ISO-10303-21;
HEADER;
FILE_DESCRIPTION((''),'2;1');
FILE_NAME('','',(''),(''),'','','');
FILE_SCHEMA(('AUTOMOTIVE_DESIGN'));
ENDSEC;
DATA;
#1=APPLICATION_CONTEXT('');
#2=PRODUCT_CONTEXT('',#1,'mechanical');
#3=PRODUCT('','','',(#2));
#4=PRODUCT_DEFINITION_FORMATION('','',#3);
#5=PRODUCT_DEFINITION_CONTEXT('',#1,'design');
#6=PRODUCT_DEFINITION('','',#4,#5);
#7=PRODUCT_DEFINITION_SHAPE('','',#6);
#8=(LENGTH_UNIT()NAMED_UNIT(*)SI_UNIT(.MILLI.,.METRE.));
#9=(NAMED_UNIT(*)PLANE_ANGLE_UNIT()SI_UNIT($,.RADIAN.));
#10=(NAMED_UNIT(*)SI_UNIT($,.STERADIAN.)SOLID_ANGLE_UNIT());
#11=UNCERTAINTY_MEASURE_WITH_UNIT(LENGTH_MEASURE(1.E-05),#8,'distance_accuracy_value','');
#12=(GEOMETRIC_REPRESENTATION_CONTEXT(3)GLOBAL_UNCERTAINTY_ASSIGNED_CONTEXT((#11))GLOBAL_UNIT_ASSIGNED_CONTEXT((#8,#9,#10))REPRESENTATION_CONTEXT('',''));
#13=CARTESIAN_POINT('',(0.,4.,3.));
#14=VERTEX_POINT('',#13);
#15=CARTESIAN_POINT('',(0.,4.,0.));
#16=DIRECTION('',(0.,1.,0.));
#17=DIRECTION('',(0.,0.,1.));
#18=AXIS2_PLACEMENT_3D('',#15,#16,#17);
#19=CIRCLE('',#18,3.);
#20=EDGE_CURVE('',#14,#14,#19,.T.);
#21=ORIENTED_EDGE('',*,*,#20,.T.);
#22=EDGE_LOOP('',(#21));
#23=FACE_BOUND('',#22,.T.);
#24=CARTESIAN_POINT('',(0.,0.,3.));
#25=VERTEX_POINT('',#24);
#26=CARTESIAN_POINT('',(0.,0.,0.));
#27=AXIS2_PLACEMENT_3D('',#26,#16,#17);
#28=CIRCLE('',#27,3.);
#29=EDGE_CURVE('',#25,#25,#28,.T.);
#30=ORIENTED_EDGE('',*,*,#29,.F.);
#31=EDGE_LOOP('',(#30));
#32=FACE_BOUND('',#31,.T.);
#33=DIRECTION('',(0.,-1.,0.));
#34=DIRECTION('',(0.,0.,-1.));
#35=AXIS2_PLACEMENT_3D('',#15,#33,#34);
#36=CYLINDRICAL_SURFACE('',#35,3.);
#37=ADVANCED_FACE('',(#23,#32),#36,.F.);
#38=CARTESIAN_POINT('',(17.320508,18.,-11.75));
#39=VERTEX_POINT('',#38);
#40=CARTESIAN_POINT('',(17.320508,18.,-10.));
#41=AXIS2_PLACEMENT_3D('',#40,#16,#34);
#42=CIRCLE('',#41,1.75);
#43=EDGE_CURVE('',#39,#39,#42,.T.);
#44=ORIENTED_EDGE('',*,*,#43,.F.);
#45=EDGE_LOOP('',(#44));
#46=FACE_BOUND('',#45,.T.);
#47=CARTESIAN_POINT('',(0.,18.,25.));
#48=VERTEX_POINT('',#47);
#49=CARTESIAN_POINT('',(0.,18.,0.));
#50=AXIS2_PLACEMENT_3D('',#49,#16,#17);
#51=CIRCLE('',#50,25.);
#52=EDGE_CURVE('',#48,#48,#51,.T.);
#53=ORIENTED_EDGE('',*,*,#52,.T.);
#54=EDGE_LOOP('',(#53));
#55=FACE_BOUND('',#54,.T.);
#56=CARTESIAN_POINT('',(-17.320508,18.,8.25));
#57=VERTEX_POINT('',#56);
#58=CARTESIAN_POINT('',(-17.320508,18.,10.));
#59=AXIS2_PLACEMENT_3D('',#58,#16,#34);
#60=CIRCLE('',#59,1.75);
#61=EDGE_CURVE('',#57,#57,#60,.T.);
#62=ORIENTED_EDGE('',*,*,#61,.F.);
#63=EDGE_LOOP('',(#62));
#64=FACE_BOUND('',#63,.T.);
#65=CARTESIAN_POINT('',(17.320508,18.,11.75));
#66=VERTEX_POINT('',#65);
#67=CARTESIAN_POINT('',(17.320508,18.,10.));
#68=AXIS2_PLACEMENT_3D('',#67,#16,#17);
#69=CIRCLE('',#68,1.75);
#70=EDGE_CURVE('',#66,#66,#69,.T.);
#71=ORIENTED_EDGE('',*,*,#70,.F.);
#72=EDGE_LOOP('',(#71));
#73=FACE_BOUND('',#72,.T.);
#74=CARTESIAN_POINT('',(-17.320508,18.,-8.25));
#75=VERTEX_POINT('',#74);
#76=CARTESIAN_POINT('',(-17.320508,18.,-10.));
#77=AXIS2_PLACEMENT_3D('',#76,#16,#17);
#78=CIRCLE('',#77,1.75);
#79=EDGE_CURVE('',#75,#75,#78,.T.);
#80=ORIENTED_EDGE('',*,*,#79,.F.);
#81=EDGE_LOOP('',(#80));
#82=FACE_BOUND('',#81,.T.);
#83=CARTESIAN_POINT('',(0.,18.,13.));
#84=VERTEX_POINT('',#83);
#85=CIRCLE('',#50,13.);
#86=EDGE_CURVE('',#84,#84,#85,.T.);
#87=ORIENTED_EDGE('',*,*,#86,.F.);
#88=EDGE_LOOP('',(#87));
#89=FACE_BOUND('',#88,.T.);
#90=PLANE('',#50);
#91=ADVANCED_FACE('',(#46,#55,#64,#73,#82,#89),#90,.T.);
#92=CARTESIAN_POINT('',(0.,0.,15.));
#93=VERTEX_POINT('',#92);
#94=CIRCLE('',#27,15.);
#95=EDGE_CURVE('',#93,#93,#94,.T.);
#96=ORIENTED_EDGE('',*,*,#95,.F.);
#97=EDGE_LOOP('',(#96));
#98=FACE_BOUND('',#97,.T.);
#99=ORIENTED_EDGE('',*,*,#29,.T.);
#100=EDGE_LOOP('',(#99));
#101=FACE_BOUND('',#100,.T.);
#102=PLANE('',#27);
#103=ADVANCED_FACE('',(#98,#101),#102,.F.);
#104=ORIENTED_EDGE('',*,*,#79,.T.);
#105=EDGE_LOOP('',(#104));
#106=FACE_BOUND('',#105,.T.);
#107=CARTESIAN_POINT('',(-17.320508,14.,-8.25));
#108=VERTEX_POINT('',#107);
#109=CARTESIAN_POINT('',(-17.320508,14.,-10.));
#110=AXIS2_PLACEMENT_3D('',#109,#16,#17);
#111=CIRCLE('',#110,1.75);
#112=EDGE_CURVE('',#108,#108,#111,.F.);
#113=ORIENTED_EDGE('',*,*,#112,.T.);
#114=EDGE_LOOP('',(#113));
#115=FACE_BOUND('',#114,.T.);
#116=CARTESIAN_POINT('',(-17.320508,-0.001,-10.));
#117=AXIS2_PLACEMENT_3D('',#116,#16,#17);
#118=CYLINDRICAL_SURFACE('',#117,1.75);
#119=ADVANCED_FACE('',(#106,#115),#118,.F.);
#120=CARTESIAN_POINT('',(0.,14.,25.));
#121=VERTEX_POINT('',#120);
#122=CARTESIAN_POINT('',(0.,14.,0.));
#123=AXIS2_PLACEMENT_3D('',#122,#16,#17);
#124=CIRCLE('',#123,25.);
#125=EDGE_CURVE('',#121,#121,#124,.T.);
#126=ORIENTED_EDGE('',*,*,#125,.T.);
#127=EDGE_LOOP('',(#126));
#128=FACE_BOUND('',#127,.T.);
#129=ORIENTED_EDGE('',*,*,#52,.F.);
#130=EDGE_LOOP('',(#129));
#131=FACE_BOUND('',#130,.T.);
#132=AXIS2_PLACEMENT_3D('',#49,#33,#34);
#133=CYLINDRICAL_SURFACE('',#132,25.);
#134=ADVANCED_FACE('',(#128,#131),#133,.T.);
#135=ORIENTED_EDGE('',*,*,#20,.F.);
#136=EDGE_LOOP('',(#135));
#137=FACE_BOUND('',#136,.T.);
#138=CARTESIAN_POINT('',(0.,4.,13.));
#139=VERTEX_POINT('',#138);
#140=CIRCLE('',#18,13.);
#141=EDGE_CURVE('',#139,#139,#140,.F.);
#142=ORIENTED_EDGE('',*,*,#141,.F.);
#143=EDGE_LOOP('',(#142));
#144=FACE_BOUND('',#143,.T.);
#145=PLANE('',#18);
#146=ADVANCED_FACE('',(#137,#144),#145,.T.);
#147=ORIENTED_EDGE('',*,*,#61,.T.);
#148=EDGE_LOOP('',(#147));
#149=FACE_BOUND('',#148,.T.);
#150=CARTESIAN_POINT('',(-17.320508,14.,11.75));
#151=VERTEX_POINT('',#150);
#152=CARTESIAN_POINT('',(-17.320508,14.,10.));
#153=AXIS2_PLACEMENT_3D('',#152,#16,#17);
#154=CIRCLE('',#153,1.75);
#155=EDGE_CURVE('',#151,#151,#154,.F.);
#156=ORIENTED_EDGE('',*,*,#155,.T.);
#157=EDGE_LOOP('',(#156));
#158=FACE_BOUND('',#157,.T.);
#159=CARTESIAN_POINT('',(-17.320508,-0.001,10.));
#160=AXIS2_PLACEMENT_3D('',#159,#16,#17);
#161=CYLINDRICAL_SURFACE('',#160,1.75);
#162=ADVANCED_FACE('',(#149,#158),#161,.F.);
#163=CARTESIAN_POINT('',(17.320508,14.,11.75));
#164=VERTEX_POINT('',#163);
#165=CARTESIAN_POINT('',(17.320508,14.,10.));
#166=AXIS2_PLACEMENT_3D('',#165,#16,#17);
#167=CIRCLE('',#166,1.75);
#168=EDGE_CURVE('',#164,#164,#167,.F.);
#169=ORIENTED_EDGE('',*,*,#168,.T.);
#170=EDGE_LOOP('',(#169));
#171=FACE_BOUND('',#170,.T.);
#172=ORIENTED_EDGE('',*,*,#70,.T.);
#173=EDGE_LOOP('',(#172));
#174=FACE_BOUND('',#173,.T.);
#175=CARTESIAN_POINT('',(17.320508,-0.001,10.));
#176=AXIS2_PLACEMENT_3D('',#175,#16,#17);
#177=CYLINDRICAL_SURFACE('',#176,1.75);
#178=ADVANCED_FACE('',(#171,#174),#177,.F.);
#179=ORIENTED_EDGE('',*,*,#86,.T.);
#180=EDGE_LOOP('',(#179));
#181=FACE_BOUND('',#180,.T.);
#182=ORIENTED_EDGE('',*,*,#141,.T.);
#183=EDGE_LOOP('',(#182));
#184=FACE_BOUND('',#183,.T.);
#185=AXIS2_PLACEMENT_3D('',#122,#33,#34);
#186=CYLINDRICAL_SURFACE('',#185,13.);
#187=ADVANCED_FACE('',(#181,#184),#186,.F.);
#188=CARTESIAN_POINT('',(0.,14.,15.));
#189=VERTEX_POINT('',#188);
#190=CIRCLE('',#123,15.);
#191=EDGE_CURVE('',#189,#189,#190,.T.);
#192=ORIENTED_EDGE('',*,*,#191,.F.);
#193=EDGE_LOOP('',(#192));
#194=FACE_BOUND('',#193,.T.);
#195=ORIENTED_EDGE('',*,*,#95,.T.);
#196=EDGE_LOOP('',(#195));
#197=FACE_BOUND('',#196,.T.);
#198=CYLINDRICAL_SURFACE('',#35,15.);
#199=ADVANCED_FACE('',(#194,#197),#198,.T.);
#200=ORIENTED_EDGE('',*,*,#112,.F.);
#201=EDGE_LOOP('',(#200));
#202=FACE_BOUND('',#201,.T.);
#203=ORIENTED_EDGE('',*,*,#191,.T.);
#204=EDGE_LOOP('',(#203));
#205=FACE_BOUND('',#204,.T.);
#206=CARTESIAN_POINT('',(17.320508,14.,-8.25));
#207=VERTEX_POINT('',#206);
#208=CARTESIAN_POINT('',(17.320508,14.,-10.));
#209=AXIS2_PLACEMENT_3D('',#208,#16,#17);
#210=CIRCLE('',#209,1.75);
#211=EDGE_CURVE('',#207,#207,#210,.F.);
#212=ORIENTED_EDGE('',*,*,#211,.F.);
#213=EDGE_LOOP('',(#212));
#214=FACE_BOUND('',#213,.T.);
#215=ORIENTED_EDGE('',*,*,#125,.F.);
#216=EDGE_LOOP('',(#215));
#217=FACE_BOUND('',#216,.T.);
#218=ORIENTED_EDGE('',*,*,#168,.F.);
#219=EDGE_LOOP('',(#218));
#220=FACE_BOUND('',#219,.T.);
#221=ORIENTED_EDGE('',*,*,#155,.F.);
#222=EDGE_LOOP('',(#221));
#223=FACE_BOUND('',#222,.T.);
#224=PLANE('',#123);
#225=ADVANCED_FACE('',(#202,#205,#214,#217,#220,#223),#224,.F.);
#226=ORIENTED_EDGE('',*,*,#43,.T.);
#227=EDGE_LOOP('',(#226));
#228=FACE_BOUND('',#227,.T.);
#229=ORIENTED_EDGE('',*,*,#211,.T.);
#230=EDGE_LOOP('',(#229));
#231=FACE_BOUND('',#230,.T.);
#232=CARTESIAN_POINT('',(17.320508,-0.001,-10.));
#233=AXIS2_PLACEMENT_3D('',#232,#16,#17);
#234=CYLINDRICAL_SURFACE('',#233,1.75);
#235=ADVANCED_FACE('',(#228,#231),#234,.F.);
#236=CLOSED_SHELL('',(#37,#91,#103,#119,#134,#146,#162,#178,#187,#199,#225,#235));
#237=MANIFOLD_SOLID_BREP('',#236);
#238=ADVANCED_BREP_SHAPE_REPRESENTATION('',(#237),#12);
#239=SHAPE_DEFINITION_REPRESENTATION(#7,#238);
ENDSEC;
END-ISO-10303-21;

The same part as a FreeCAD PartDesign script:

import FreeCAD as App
import Part
import Sketcher

V = App.Vector
Q = App.Units.Quantity

doc = App.newDocument("Part")
body = doc.addObject("PartDesign::Body", "Body")

sketch1 = doc.addObject("Sketcher::SketchObject", "Sketch")
body.addObject(sketch1)
sketch1.AttachmentSupport = (doc.XZ_Plane, [""])
sketch1.MapMode = "FlatFace"
sketch1.addGeometry([
    Part.Circle(V(0, 0, 0), V(0, 0, 1), 15),
    Part.Circle(V(0, 0, 0), V(0, 0, 1), 3),
], False)
sketch1.addConstraint([
    Sketcher.Constraint("Coincident", 0, 3, -1, 1),
    Sketcher.Constraint("Coincident", 1, 3, -1, 1),
    Sketcher.Constraint("Diameter", 0, Q("30 mm")),
    Sketcher.Constraint("Diameter", 1, Q("6 mm")),
])
pad1 = doc.addObject("PartDesign::Pad", "Pad")
body.addObject(pad1)
pad1.Profile = sketch1
pad1.Length = 4
pad1.Reversed = True

sketch2 = doc.addObject("Sketcher::SketchObject", "Sketch001")
body.addObject(sketch2)
sketch2.AttachmentSupport = (doc.XZ_Plane, [""])
sketch2.MapMode = "FlatFace"
sketch2.AttachmentOffset = App.Placement(V(0, 0, -4), App.Rotation())
sketch2.addGeometry([
    Part.Circle(V(0, 0, 0), V(0, 0, 1), 15),
    Part.Circle(V(0, 0, 0), V(0, 0, 1), 13),
], False)
sketch2.addConstraint([
    Sketcher.Constraint("Coincident", 0, 3, -1, 1),
    Sketcher.Constraint("Coincident", 1, 3, -1, 1),
    Sketcher.Constraint("Diameter", 0, Q("30 mm")),
    Sketcher.Constraint("Diameter", 1, Q("26 mm")),
])
pad2 = doc.addObject("PartDesign::Pad", "Pad001")
body.addObject(pad2)
pad2.Profile = sketch2
pad2.Length = 10
pad2.Reversed = True

sketch3 = doc.addObject("Sketcher::SketchObject", "Sketch002")
body.addObject(sketch3)
sketch3.AttachmentSupport = (doc.XZ_Plane, [""])
sketch3.MapMode = "FlatFace"
sketch3.AttachmentOffset = App.Placement(V(0, 0, -14), App.Rotation())
sketch3.addGeometry([
    Part.Circle(V(0, 0, 0), V(0, 0, 1), 25),
    Part.Circle(V(0, 0, 0), V(0, 0, 1), 13),
], False)
sketch3.addConstraint([
    Sketcher.Constraint("Coincident", 0, 3, -1, 1),
    Sketcher.Constraint("Coincident", 1, 3, -1, 1),
    Sketcher.Constraint("Diameter", 0, Q("50 mm")),
    Sketcher.Constraint("Diameter", 1, Q("26 mm")),
])
pad3 = doc.addObject("PartDesign::Pad", "Pad002")
body.addObject(pad3)
pad3.Profile = sketch3
pad3.Length = 4
pad3.Reversed = True

sketch4 = doc.addObject("Sketcher::SketchObject", "Sketch003")
body.addObject(sketch4)
sketch4.AttachmentSupport = (doc.XZ_Plane, [""])
sketch4.MapMode = "FlatFace"
sketch4.AttachmentOffset = App.Placement(V(0, 0, -18), App.Rotation())
sketch4.addGeometry(Part.Circle(V(-17.3, -10, 0), V(0, 0, 1), 1.8), False)
sketch4.addConstraint([
    Sketcher.Constraint("Diameter", 0, Q("3.5 mm")),
    Sketcher.Constraint("DistanceY", 0, 3, -1, 1, Q("10 mm")),
    Sketcher.Constraint("DistanceX", 0, 3, -1, 1, Q("17.320508 mm")),
])
pocket1 = doc.addObject("PartDesign::Pocket", "Pocket")
body.addObject(pocket1)
pocket1.Profile = sketch4
pocket1.Type = "UpToFirst"
pocket1.Reversed = True

sketch5 = doc.addObject("Sketcher::SketchObject", "Sketch004")
body.addObject(sketch5)
sketch5.AttachmentSupport = (doc.XZ_Plane, [""])
sketch5.MapMode = "FlatFace"
sketch5.AttachmentOffset = App.Placement(V(0, 0, -18), App.Rotation())
sketch5.addGeometry(Part.Circle(V(17.3, -10, 0), V(0, 0, 1), 1.8), False)
sketch5.addConstraint([
    Sketcher.Constraint("Diameter", 0, Q("3.5 mm")),
    Sketcher.Constraint("DistanceY", 0, 3, -1, 1, Q("10 mm")),
    Sketcher.Constraint("DistanceX", -1, 1, 0, 3, Q("17.320508 mm")),
])
pocket2 = doc.addObject("PartDesign::Pocket", "Pocket001")
body.addObject(pocket2)
pocket2.Profile = sketch5
pocket2.Type = "UpToFirst"
pocket2.Reversed = True

sketch6 = doc.addObject("Sketcher::SketchObject", "Sketch005")
body.addObject(sketch6)
sketch6.AttachmentSupport = (doc.XZ_Plane, [""])
sketch6.MapMode = "FlatFace"
sketch6.AttachmentOffset = App.Placement(V(0, 0, -18), App.Rotation())
sketch6.addGeometry(Part.Circle(V(17.3, 10, 0), V(0, 0, 1), 1.8), False)
sketch6.addConstraint([
    Sketcher.Constraint("Diameter", 0, Q("3.5 mm")),
    Sketcher.Constraint("DistanceY", -1, 1, 0, 3, Q("10 mm")),
    Sketcher.Constraint("DistanceX", -1, 1, 0, 3, Q("17.320508 mm")),
])
pocket3 = doc.addObject("PartDesign::Pocket", "Pocket002")
body.addObject(pocket3)
pocket3.Profile = sketch6
pocket3.Type = "UpToFirst"
pocket3.Reversed = True

sketch7 = doc.addObject("Sketcher::SketchObject", "Sketch006")
body.addObject(sketch7)
sketch7.AttachmentSupport = (doc.XZ_Plane, [""])
sketch7.MapMode = "FlatFace"
sketch7.AttachmentOffset = App.Placement(V(0, 0, -18), App.Rotation())
sketch7.addGeometry(Part.Circle(V(-17.3, 10, 0), V(0, 0, 1), 1.8), False)
sketch7.addConstraint([
    Sketcher.Constraint("Diameter", 0, Q("3.5 mm")),
    Sketcher.Constraint("DistanceY", -1, 1, 0, 3, Q("10 mm")),
    Sketcher.Constraint("DistanceX", 0, 3, -1, 1, Q("17.320508 mm")),
])
pocket4 = doc.addObject("PartDesign::Pocket", "Pocket003")
body.addObject(pocket4)
pocket4.Profile = sketch7
pocket4.Type = "UpToFirst"
pocket4.Reversed = True

doc.recompute()
